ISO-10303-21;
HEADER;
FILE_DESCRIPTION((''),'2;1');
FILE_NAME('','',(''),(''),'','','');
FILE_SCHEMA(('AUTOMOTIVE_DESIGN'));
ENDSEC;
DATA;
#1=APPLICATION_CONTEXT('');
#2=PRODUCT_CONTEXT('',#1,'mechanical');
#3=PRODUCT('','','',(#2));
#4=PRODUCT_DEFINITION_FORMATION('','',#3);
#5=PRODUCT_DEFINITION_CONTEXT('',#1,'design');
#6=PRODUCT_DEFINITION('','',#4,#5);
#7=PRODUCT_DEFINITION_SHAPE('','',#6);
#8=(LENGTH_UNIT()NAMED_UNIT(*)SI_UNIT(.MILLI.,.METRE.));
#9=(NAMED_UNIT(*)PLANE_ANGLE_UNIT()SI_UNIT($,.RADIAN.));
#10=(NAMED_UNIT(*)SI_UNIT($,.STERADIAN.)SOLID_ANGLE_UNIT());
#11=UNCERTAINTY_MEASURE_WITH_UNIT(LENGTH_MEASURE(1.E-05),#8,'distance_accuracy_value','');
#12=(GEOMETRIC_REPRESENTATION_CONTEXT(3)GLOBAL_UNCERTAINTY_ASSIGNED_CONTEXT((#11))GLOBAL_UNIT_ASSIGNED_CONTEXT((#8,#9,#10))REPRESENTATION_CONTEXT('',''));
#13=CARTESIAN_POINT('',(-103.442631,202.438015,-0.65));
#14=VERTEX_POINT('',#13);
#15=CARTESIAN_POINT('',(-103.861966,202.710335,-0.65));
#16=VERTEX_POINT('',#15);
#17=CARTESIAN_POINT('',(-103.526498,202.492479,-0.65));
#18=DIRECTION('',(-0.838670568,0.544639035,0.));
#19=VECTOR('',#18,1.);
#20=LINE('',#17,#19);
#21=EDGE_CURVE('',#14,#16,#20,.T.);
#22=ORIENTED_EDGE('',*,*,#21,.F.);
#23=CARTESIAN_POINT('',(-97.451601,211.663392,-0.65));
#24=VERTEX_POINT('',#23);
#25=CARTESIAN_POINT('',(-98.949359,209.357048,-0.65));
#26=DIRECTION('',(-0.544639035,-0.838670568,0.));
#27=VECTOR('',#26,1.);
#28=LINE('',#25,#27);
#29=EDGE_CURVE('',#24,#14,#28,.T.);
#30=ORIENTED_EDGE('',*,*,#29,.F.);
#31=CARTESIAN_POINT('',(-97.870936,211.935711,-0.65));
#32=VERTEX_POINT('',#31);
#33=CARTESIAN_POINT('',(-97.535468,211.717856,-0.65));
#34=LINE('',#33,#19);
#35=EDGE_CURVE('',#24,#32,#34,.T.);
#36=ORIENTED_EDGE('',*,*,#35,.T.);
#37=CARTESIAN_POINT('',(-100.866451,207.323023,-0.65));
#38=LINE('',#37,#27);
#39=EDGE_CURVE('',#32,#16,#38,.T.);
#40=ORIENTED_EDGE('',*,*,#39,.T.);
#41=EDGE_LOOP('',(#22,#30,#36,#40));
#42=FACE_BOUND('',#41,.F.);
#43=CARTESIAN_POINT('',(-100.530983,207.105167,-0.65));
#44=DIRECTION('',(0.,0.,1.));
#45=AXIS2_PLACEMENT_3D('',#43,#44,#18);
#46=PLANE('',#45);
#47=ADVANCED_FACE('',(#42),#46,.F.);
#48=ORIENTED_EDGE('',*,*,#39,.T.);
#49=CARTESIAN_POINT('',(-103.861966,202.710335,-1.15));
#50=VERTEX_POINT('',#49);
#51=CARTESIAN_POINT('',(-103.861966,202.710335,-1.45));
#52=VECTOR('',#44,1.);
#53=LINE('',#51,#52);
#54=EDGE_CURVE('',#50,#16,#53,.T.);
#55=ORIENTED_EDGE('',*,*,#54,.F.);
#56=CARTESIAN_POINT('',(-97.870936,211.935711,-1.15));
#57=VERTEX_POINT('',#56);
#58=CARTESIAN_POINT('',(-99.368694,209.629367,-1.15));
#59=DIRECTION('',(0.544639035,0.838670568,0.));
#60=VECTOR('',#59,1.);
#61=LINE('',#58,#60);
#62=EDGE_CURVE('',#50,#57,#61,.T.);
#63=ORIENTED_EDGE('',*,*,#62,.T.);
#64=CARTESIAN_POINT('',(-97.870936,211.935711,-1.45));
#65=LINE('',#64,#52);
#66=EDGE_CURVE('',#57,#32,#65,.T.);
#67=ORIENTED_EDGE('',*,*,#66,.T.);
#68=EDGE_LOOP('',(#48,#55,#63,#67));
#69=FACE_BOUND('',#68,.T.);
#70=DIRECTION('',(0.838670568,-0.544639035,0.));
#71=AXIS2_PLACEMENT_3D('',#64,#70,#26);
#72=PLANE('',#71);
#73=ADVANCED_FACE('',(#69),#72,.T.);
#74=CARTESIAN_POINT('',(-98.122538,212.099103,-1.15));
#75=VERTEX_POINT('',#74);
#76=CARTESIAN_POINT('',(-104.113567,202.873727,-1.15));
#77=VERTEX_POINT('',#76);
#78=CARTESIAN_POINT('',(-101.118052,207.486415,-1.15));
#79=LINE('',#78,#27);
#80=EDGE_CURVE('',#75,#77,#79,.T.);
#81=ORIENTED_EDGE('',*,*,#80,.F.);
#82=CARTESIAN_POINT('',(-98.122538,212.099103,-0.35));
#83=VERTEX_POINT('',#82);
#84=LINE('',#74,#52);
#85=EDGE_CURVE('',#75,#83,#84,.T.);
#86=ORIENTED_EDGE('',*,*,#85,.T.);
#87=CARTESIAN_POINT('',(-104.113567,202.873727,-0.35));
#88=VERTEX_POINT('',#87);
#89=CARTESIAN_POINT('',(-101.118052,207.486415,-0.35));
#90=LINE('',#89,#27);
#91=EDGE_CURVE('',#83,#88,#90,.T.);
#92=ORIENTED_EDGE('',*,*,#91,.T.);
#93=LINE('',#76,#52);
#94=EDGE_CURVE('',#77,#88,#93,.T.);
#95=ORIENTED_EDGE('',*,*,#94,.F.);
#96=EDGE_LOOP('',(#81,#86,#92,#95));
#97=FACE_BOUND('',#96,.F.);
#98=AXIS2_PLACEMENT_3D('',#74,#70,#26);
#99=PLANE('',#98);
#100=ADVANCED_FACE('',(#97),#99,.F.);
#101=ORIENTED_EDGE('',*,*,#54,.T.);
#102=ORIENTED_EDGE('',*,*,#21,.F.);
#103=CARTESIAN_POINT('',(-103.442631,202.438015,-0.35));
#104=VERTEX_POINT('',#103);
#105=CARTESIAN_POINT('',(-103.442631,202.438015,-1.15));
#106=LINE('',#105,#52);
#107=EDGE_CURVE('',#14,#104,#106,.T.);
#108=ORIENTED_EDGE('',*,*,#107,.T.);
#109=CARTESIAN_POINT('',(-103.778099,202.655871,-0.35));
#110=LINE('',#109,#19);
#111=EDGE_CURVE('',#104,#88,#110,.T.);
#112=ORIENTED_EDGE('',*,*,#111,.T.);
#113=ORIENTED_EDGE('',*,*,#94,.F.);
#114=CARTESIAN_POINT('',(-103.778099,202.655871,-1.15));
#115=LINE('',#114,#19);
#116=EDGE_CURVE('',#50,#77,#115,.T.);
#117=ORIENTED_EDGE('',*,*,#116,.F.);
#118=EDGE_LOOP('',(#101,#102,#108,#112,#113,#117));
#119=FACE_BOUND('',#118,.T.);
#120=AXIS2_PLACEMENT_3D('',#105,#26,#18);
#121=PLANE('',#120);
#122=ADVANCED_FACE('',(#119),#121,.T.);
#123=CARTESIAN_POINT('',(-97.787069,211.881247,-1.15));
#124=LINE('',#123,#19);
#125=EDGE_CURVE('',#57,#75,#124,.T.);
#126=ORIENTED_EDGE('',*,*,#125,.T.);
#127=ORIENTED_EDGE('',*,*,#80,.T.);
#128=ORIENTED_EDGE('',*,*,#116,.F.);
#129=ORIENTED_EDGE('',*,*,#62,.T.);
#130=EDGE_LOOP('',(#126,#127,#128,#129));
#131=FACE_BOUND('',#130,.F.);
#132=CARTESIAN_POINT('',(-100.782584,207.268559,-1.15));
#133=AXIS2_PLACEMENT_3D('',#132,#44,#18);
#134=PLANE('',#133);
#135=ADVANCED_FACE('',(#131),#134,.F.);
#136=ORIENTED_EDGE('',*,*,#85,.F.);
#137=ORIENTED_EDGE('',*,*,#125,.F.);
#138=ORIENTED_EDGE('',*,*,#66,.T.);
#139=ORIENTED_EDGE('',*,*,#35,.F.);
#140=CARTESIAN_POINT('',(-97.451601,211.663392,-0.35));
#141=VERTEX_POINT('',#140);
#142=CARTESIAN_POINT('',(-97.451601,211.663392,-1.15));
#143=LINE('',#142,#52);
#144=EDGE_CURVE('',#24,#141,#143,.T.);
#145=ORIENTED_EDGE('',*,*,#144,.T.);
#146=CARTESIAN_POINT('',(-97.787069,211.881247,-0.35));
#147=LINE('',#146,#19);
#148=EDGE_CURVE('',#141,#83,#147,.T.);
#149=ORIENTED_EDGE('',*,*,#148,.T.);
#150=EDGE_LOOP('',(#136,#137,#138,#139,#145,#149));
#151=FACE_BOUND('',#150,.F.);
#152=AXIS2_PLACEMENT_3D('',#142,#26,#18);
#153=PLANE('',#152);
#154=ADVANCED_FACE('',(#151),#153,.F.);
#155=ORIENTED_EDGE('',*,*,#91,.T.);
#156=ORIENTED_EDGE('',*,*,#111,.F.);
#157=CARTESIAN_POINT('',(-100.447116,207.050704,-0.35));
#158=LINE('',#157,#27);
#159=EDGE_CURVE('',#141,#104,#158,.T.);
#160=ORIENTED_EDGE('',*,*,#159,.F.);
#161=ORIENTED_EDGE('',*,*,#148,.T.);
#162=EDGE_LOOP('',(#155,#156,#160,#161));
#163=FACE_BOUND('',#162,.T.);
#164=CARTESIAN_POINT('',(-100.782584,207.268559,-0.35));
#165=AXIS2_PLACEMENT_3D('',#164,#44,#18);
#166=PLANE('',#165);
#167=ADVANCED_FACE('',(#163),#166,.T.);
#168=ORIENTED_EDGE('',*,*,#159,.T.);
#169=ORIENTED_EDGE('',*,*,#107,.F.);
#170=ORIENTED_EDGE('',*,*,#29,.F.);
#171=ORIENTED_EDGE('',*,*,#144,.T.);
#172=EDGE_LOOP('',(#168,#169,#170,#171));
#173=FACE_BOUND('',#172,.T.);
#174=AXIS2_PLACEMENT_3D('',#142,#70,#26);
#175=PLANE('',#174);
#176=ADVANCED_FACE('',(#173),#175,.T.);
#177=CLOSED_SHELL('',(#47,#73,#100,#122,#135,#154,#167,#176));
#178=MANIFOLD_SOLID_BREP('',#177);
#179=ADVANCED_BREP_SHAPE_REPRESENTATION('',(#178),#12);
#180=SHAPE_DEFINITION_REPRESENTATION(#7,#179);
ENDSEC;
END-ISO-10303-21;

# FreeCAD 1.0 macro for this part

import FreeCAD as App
import Part
import Sketcher

V = App.Vector


def add_polygon(sketch, points):
    """Adds a closed chain of lines whose ends are joined by coincident constraints."""
    first, n = sketch.GeometryCount, len(points)
    for a, b in zip(points, points[1:] + points[:1]):
        sketch.addGeometry(Part.LineSegment(App.Vector(*a, 0), App.Vector(*b, 0)), False)
    for i in range(n):
        sketch.addConstraint(Sketcher.Constraint("Coincident", first + i, 2, first + (i + 1) % n, 1))

doc = App.newDocument("Part")
body = doc.addObject("PartDesign::Body", "Body")

sketch1 = body.newObject("Sketcher::SketchObject", "Sketch")
sketch1.AttachmentSupport = (doc.getObject("XY_Plane"), [""])
sketch1.MapMode = "FlatFace"
add_polygon(sketch1, [(0, 11), (0, 0), (0.8, 0), (0.8, 11)])
sketch1.addConstraint([
    Sketcher.Constraint("Vertical", 0),
    Sketcher.Constraint("Horizontal", 1),
    Sketcher.Constraint("Vertical", 2),
    Sketcher.Constraint("Horizontal", 3),
    Sketcher.Constraint("Coincident", 0, 2, -1, 1),
    Sketcher.Constraint("DistanceY", 0, 2, 0, 1, 11.0),
    Sketcher.Constraint("DistanceX", 1, 1, 1, 2, 0.8),
])
pad1 = body.newObject("PartDesign::Pad", "Pad")
pad1.Profile = sketch1
pad1.Length = 0.8
body2 = doc.addObject("PartDesign::Body", "Body001")

sketch2 = body2.newObject("Sketcher::SketchObject", "Sketch001")
sketch2.AttachmentSupport = (doc.getObject("XY_Plane001"), [""])
sketch2.MapMode = "FlatFace"
sketch2.AttachmentOffset = App.Placement(V(0, 0, 0.3), App.Rotation())
add_polygon(sketch2, [(0.3, 11), (0.3, 0), (1.1, 0), (1.1, 11)])
sketch2.addConstraint([
    Sketcher.Constraint("Vertical", 0),
    Sketcher.Constraint("Horizontal", 1),
    Sketcher.Constraint("Vertical", 2),
    Sketcher.Constraint("Horizontal", 3),
    Sketcher.Constraint("PointOnObject", 0, 2, -1),
    Sketcher.Constraint("DistanceY", 0, 2, 0, 1, 11.0),
    Sketcher.Constraint("DistanceX", 1, 1, 1, 2, 0.8),
    Sketcher.Constraint("DistanceX", -1, 1, 0, 2, 0.3),
])
pad2 = body2.newObject("PartDesign::Pad", "Pad001")
pad2.Profile = sketch2
pad2.Length = 0.8
doc.recompute()

boolean = body2.newObject("PartDesign::Boolean", "Boolean")
boolean.Type = "Cut"
boolean.addObjects([body])
body3 = doc.addObject("PartDesign::Body", "Body002")
doc.recompute()

body2.Placement = App.Placement(V(-97.2, 211.5, -1.45), App.Rotation(V(0, 0, 1), 147))
boolean2 = body3.newObject("PartDesign::Boolean", "Boolean001")
boolean2.Type = "Fuse"
boolean2.addObjects([body2])

doc.recompute()
